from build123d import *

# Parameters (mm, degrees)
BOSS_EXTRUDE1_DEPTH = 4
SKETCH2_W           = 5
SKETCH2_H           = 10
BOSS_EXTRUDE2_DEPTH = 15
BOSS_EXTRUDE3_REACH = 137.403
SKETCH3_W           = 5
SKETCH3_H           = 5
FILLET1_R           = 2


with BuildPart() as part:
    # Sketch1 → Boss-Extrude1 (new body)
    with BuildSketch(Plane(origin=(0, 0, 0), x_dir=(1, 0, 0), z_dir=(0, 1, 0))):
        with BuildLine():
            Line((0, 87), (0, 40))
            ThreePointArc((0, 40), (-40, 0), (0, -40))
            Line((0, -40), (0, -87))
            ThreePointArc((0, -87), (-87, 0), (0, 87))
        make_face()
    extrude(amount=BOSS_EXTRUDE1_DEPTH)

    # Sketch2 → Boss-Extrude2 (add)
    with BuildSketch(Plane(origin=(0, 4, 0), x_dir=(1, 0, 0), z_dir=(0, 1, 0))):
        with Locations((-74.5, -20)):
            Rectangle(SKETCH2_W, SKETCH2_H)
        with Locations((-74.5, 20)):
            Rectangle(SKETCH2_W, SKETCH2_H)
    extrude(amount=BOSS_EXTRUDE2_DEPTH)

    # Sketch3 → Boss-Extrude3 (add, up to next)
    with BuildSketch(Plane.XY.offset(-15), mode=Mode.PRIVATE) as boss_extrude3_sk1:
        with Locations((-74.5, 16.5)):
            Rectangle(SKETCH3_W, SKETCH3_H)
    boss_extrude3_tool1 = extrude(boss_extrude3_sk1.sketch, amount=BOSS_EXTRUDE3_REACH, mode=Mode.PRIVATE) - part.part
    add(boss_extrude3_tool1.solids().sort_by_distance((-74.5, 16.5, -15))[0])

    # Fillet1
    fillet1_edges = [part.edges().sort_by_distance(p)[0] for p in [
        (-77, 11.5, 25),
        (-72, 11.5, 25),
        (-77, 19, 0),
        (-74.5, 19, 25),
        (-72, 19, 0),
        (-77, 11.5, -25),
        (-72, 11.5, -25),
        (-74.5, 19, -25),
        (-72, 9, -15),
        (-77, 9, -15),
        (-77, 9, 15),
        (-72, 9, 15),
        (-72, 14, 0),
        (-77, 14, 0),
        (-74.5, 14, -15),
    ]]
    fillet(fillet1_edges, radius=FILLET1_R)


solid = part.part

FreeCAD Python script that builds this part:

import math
import FreeCAD as App
import Part
import Sketcher

V = App.Vector
Q = App.Units.Quantity


def edges_at(feature, points):
    """Names of the edges that pass closest to the given points."""
    edges = feature.Shape.Edges
    near = lambda p: min(range(len(edges)), key=lambda i: edges[i].distToShape(Part.Vertex(*p))[0])
    return sorted({f"Edge{near(p) + 1}" for p in points})


def add_polygon(sketch, points):
    """Adds a closed chain of lines whose ends are joined by coincident constraints."""
    first, n = sketch.GeometryCount, len(points)
    for a, b in zip(points, points[1:] + points[:1]):
        sketch.addGeometry(Part.LineSegment(App.Vector(*a, 0), App.Vector(*b, 0)), False)
    for i in range(n):
        sketch.addConstraint(Sketcher.Constraint("Coincident", first + i, 2, first + (i + 1) % n, 1))

doc = App.newDocument("Part")
body = doc.addObject("PartDesign::Body", "Body")

sketch1 = doc.addObject("Sketcher::SketchObject", "Sketch")
body.addObject(sketch1)
sketch1.AttachmentSupport = (doc.XZ_Plane, [""])
sketch1.MapMode = "FlatFace"
sketch1.addGeometry([
    Part.LineSegment(V(0, -40, 0), V(0, -87, 0)),
    Part.ArcOfCircle(Part.Circle(V(0, 0, 0), V(0, 0, 1), 87), math.radians(90), math.radians(270)),
    Part.LineSegment(V(0, 87, 0), V(0, 40, 0)),
    Part.ArcOfCircle(Part.Circle(V(0, 0, 0), V(0, 0, 1), 40), math.radians(90), math.radians(270)),
], False)
sketch1.addConstraint([
    Sketcher.Constraint("Coincident", 0, 2, 1, 2),
    Sketcher.Constraint("Coincident", 1, 1, 2, 1),
    Sketcher.Constraint("Coincident", 2, 2, 3, 1),
    Sketcher.Constraint("Coincident", 3, 2, 0, 1),
    Sketcher.Constraint("Vertical", 0),
    Sketcher.Constraint("Vertical", 2),
    Sketcher.Constraint("Coincident", 1, 3, -1, 1),
    Sketcher.Constraint("Coincident", 3, 3, -1, 1),
    Sketcher.Constraint("PointOnObject", 0, 2, -2),
    Sketcher.Constraint("PointOnObject", 1, 1, -2),
    Sketcher.Constraint("Radius", 1, Q("87 mm")),
    Sketcher.Constraint("Radius", 3, Q("40 mm")),
])
pad1 = doc.addObject("PartDesign::Pad", "Pad")
body.addObject(pad1)
pad1.Profile = sketch1
pad1.Length = 4
pad1.Reversed = True

sketch2 = doc.addObject("Sketcher::SketchObject", "Sketch001")
body.addObject(sketch2)
sketch2.AttachmentSupport = (doc.XZ_Plane, [""])
sketch2.MapMode = "FlatFace"
sketch2.AttachmentOffset = App.Placement(V(0, 0, -4), App.Rotation())
add_polygon(sketch2, [(-77, 15), (-77, 25), (-72, 25), (-72, 15)])
add_polygon(sketch2, [(-77, -25), (-77, -15), (-72, -15), (-72, -25)])
sketch2.addConstraint([
    Sketcher.Constraint("Vertical", 0),
    Sketcher.Constraint("Horizontal", 1),
    Sketcher.Constraint("Vertical", 2),
    Sketcher.Constraint("Horizontal", 3),
    Sketcher.Constraint("Vertical", 4),
    Sketcher.Constraint("Horizontal", 5),
    Sketcher.Constraint("Vertical", 6),
    Sketcher.Constraint("Horizontal", 7),
    Sketcher.Constraint("Symmetric", 3, 2, 4, 2, -1),
    Sketcher.Constraint("Symmetric", 1, 2, 6, 2, -1),
    Sketcher.Constraint("DistanceX", 1, 1, 1, 2, Q("5 mm")),
    Sketcher.Constraint("DistanceY", 0, 1, 0, 2, Q("10 mm")),
    Sketcher.Constraint("DistanceX", 0, 2, -1, 1, Q("77 mm")),
    Sketcher.Constraint("DistanceY", -1, 1, 0, 2, Q("25 mm")),
])
pad2 = doc.addObject("PartDesign::Pad", "Pad001")
body.addObject(pad2)
pad2.Profile = sketch2
pad2.Length = 15
pad2.Reversed = True

sketch3 = doc.addObject("Sketcher::SketchObject", "Sketch002")
body.addObject(sketch3)
sketch3.AttachmentSupport = (doc.XY_Plane, [""])
sketch3.MapMode = "FlatFace"
sketch3.AttachmentOffset = App.Placement(V(0, 0, -15), App.Rotation())
add_polygon(sketch3, [(-77, 19), (-77, 14), (-72, 14), (-72, 19)])
sketch3.addConstraint([
    Sketcher.Constraint("Vertical", 0),
    Sketcher.Constraint("Horizontal", 1),
    Sketcher.Constraint("Vertical", 2),
    Sketcher.Constraint("Horizontal", 3),
    Sketcher.Constraint("Equal", 3, 0),
    Sketcher.Constraint("DistanceX", 1, 1, 1, 2, Q("5 mm")),
    Sketcher.Constraint("DistanceX", 0, 2, -1, 1, Q("77 mm")),
    Sketcher.Constraint("DistanceY", -1, 1, 0, 2, Q("14 mm")),
])
pad3 = doc.addObject("PartDesign::Pad", "Pad002")
body.addObject(pad3)
pad3.Profile = sketch3
pad3.Type = "UpToFirst"
doc.recompute()

fillet = doc.addObject("PartDesign::Fillet", "Fillet")
body.addObject(fillet)
fillet.Base = (pad3, edges_at(pad3, [
    (-77, 11.5, 25),
    (-72, 11.5, 25),
    (-77, 19, 0),
    (-74.5, 19, 25),
    (-72, 19, 0),
    (-77, 11.5, -25),
    (-72, 11.5, -25),
    (-74.5, 19, -25),
    (-72, 9, -15),
    (-77, 9, -15),
    (-77, 9, 15),
    (-72, 9, 15),
    (-72, 14, 0),
    (-77, 14, 0),
    (-74.5, 14, -15),
]))
fillet.Radius = 2

doc.recompute()
